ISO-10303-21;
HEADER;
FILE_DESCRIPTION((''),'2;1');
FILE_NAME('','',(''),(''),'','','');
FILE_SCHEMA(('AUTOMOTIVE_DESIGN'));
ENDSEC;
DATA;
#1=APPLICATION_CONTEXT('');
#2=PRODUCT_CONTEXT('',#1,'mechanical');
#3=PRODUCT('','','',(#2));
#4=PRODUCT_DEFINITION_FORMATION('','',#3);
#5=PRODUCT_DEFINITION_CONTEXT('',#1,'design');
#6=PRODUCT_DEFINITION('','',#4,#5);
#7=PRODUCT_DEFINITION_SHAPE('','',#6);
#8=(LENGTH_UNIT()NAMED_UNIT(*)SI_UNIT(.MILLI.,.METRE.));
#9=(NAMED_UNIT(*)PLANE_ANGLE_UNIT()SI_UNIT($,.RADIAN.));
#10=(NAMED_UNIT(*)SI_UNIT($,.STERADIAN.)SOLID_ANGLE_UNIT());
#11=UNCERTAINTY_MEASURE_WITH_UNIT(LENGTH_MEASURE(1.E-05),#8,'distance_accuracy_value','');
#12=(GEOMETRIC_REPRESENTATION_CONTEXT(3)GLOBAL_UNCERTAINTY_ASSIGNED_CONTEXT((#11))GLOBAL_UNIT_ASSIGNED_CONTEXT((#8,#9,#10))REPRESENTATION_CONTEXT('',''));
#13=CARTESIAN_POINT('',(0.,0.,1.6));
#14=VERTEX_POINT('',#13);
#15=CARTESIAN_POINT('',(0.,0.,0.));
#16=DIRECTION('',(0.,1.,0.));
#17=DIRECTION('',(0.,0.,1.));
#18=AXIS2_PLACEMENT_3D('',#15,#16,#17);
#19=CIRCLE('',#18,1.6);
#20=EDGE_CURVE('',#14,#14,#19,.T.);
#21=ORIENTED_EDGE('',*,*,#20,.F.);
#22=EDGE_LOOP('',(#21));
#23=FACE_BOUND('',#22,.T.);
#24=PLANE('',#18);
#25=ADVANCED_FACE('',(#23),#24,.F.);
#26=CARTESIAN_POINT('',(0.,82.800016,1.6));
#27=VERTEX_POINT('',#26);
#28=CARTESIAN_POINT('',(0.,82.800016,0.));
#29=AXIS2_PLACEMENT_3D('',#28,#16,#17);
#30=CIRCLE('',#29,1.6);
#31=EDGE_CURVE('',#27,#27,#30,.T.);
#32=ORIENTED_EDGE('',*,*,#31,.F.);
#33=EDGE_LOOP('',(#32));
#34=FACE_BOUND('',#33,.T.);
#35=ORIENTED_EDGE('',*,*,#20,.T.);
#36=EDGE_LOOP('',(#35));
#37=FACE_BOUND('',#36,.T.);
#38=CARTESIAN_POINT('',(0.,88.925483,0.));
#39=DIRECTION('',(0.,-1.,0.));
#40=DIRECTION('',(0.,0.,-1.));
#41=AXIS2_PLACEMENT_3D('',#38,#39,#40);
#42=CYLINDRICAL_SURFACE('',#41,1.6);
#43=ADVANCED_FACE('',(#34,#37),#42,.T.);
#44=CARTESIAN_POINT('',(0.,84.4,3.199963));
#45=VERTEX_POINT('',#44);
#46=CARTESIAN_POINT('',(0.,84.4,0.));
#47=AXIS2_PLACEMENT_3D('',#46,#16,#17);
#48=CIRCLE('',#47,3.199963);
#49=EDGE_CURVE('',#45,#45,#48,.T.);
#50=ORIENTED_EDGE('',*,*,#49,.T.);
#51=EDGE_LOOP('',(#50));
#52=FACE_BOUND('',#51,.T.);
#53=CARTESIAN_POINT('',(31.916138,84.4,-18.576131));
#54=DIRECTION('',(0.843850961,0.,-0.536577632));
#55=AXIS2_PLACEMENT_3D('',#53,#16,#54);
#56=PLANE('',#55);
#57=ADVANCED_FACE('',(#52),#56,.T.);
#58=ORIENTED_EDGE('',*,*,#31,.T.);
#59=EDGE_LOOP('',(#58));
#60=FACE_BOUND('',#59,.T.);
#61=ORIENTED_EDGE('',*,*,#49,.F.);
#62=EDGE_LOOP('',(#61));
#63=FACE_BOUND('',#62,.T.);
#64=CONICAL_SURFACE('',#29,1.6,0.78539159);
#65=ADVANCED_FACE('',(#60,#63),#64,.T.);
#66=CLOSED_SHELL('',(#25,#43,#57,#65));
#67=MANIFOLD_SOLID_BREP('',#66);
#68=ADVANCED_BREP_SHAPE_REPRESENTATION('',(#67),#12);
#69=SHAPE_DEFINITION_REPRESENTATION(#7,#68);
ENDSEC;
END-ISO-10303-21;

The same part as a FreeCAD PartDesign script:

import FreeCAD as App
import Part
import Sketcher

V = App.Vector


def add_polygon(sketch, points):
    """Adds a closed chain of lines whose ends are joined by coincident constraints."""
    first, n = sketch.GeometryCount, len(points)
    for a, b in zip(points, points[1:] + points[:1]):
        sketch.addGeometry(Part.LineSegment(App.Vector(*a, 0), App.Vector(*b, 0)), False)
    for i in range(n):
        sketch.addConstraint(Sketcher.Constraint("Coincident", first + i, 2, first + (i + 1) % n, 1))

doc = App.newDocument("Part")
params = doc.addObject("Spreadsheet::Sheet", "Params")
for row, (alias, value) in enumerate([
    ("sketch1_diameter", "3.2 mm"),
    ("pad1_length", "84.4 mm"),
    ("revolution_angle", "360 deg"),
], start=1):
    params.set(f"A{row}", alias)
    params.set(f"B{row}", "=" + value)
    params.setAlias(f"B{row}", alias)

body = doc.addObject("PartDesign::Body", "Body")

sketch1 = body.newObject("Sketcher::SketchObject", "Sketch")
sketch1.AttachmentSupport = (doc.getObject("XZ_Plane"), [""])
sketch1.MapMode = "FlatFace"
sketch1.addGeometry(Part.Circle(V(0, 0, 0), V(0, 0, 1), 1.6), False)
sketch1.addConstraint([
    Sketcher.Constraint("Coincident", 0, 3, -1, 1),
    Sketcher.Constraint("Diameter", 0, 3.2),
])
sketch1.setExpression("Constraints[1]", "Params.sketch1_diameter")
pad1 = body.newObject("PartDesign::Pad", "Pad")
pad1.Profile = sketch1
pad1.setExpression("Length", "Params.pad1_length")
pad1.Reversed = True

sketch2 = body.newObject("Sketcher::SketchObject", "Sketch001")
sketch2.AttachmentSupport = (doc.getObject("XY_Plane"), [""])
sketch2.MapMode = "FlatFace"
add_polygon(sketch2, [(1.6, 84.4), (1.6, 82.800016), (3.199963, 84.4)])
sketch2.addConstraint([
    Sketcher.Constraint("Vertical", 0),
    Sketcher.Constraint("Horizontal", 2),
    Sketcher.Constraint("DistanceX", -1, 1, 0, 2, 1.6),
    Sketcher.Constraint("DistanceY", -1, 1, 1, 2, 84.4),
    Sketcher.Constraint("DistanceX", 2, 2, 2, 1, 1.599963),
    Sketcher.Constraint("DistanceY", 0, 2, 0, 1, 1.599984),
])
revolution = body.newObject("PartDesign::Revolution", "Revolution")
revolution.Profile = sketch2
revolution.ReferenceAxis = (sketch2, ["V_Axis"])
revolution.setExpression("Angle", "Params.revolution_angle")

doc.recompute()
